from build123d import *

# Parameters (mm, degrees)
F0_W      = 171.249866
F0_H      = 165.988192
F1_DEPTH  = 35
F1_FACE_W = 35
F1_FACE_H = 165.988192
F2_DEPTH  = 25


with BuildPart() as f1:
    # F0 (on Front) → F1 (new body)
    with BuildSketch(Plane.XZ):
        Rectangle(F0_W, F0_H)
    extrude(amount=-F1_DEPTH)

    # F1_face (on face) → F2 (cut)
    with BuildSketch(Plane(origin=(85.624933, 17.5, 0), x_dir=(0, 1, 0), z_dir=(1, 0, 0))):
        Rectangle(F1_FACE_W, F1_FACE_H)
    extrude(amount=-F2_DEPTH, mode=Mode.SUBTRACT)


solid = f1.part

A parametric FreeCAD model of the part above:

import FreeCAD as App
import Part
import Sketcher
from FreeCAD import Vector

doc = App.newDocument("Part")
body = doc.addObject("PartDesign::Body", "Body")

# Sketch on XZ plane
sketch1 = body.newObject("Sketcher::SketchObject", "Sketch")
sketch1.AttachmentSupport = (doc.getObject("XZ_Plane"), [""])
sketch1.MapMode = "FlatFace"
sketch1.addGeometry(Part.LineSegment(Vector(-86, 83, 0), Vector(-86, -83, 0)), False)
sketch1.addGeometry(Part.LineSegment(Vector(-86, -83, 0), Vector(86, -83, 0)), False)
sketch1.addGeometry(Part.LineSegment(Vector(86, -83, 0), Vector(86, 83, 0)), False)
sketch1.addGeometry(Part.LineSegment(Vector(86, 83, 0), Vector(-86, 83, 0)), False)
sketch1.addConstraint(Sketcher.Constraint("Coincident", 0, 2, 1, 1))
sketch1.addConstraint(Sketcher.Constraint("Coincident", 1, 2, 2, 1))
sketch1.addConstraint(Sketcher.Constraint("Coincident", 2, 2, 3, 1))
sketch1.addConstraint(Sketcher.Constraint("Coincident", 3, 2, 0, 1))
sketch1.addConstraint(Sketcher.Constraint("Vertical", 0))
sketch1.addConstraint(Sketcher.Constraint("Horizontal", 1))
sketch1.addConstraint(Sketcher.Constraint("Vertical", 2))
sketch1.addConstraint(Sketcher.Constraint("Horizontal", 3))
sketch1.addConstraint(Sketcher.Constraint("Symmetric", 0, 2, 2, 2, -1, 1))
sketch1.addConstraint(Sketcher.Constraint("DistanceY", 0, 2, 0, 1, 165.988192))
sketch1.addConstraint(Sketcher.Constraint("DistanceX", 1, 1, 1, 2, 171.249866))
pad1 = body.newObject("PartDesign::Pad", "Pad")
pad1.Profile = sketch1
pad1.Length = 35
pad1.Reversed = True

# Sketch on YZ plane
sketch2 = body.newObject("Sketcher::SketchObject", "Sketch001")
sketch2.AttachmentSupport = (doc.getObject("YZ_Plane"), [""])
sketch2.MapMode = "FlatFace"
sketch2.AttachmentOffset = App.Placement(Vector(0, 0, 85.624933), App.Rotation())
sketch2.addGeometry(Part.LineSegment(Vector(0, 83, 0), Vector(0, -83, 0)), False)
sketch2.addGeometry(Part.LineSegment(Vector(0, -83, 0), Vector(35, -83, 0)), False)
sketch2.addGeometry(Part.LineSegment(Vector(35, -83, 0), Vector(35, 83, 0)), False)
sketch2.addGeometry(Part.LineSegment(Vector(35, 83, 0), Vector(0, 83, 0)), False)
sketch2.addConstraint(Sketcher.Constraint("Coincident", 0, 2, 1, 1))
sketch2.addConstraint(Sketcher.Constraint("Coincident", 1, 2, 2, 1))
sketch2.addConstraint(Sketcher.Constraint("Coincident", 2, 2, 3, 1))
sketch2.addConstraint(Sketcher.Constraint("Coincident", 3, 2, 0, 1))
sketch2.addConstraint(Sketcher.Constraint("Vertical", 0))
sketch2.addConstraint(Sketcher.Constraint("Horizontal", 1))
sketch2.addConstraint(Sketcher.Constraint("Vertical", 2))
sketch2.addConstraint(Sketcher.Constraint("Horizontal", 3))
sketch2.addConstraint(Sketcher.Constraint("Symmetric", 0, 2, 3, 2, -1, 1))
sketch2.addConstraint(Sketcher.Constraint("DistanceX", 1, 1, 1, 2, 35.0))
sketch2.addConstraint(Sketcher.Constraint("DistanceY", 0, 2, 0, 1, 165.988192))
pocket1 = body.newObject("PartDesign::Pocket", "Pocket")
pocket1.Profile = sketch2
pocket1.Length = 25

doc.recompute()
